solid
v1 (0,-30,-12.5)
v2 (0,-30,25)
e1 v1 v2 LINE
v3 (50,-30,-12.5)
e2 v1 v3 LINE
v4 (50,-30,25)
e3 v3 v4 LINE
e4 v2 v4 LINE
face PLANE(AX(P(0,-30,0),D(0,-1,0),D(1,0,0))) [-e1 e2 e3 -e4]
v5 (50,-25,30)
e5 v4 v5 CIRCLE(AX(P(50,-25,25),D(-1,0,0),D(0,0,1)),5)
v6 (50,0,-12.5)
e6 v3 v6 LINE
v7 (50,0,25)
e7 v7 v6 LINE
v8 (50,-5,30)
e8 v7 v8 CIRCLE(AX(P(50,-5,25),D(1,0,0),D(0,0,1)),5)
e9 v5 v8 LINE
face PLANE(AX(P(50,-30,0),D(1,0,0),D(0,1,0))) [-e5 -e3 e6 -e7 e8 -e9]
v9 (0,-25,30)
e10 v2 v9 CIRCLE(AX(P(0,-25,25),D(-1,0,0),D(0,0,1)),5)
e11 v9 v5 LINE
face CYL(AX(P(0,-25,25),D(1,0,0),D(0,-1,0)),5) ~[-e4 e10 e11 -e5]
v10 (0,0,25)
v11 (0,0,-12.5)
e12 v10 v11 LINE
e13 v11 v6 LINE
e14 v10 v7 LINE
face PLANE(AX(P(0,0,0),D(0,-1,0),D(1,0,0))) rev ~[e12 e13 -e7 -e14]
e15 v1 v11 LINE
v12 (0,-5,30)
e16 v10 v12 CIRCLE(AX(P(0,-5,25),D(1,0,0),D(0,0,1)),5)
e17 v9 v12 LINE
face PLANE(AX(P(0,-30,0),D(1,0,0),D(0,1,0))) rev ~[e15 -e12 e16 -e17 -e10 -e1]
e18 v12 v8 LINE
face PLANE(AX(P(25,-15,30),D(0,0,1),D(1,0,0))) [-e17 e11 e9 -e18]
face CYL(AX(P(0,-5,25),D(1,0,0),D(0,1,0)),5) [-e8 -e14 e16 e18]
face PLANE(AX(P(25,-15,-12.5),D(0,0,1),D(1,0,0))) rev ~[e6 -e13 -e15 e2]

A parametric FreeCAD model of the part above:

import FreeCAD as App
import Part
import Sketcher
Q = App.Units.Quantity


def edges_at(feature, points):
    """Names of the edges that pass closest to the given points."""
    edges = feature.Shape.Edges
    near = lambda p: min(range(len(edges)), key=lambda i: edges[i].distToShape(Part.Vertex(*p))[0])
    return sorted({f"Edge{near(p) + 1}" for p in points})

doc = App.newDocument("Part")
body = doc.addObject("PartDesign::Body", "Body")

sketch1 = body.newObject("Sketcher::SketchObject", "Sketch")
sketch1.AttachmentSupport = (doc.getObject("XY_Plane"), [""])
sketch1.MapMode = "FlatFace"
sketch1.addGeometry([
    Part.LineSegment(App.Vector(0, 0, 0), App.Vector(0, -30, 0)),
    Part.LineSegment(App.Vector(0, -30, 0), App.Vector(50, -30, 0)),
    Part.LineSegment(App.Vector(50, -30, 0), App.Vector(50, 0, 0)),
    Part.LineSegment(App.Vector(50, 0, 0), App.Vector(0, 0, 0)),
], False)
sketch1.addConstraint([
    Sketcher.Constraint("Coincident", 0, 2, 1, 1),
    Sketcher.Constraint("Coincident", 1, 2, 2, 1),
    Sketcher.Constraint("Coincident", 2, 2, 3, 1),
    Sketcher.Constraint("Coincident", 3, 2, 0, 1),
    Sketcher.Constraint("Vertical", 0),
    Sketcher.Constraint("Horizontal", 1),
    Sketcher.Constraint("Vertical", 2),
    Sketcher.Constraint("Horizontal", 3),
    Sketcher.Constraint("Coincident", 3, 2, -1, 1),
    Sketcher.Constraint("DistanceX", 1, 1, 1, 2, Q("50 mm")),
    Sketcher.Constraint("DistanceY", 0, 2, 0, 1, Q("30 mm")),
])
pad1 = body.newObject("PartDesign::Pad", "Pad")
pad1.Profile = sketch1
pad1.Length = 30
doc.recompute()

fillet = body.newObject("PartDesign::Fillet", "Fillet")
fillet.Base = (pad1, edges_at(pad1, [
    (25, -30, 0),
    (25, 0, 0),
    (25, 0, 30),
    (25, -30, 30),
]))
fillet.Radius = 5

sketch2 = body.newObject("Sketcher::SketchObject", "Sketch001")
sketch2.AttachmentSupport = (doc.getObject("XY_Plane"), [""])
sketch2.MapMode = "FlatFace"
sketch2.addGeometry([
    Part.LineSegment(App.Vector(0, 0, 0), App.Vector(0, -30, 0)),
    Part.LineSegment(App.Vector(0, -30, 0), App.Vector(50, -30, 0)),
    Part.LineSegment(App.Vector(50, -30, 0), App.Vector(50, 0, 0)),
    Part.LineSegment(App.Vector(50, 0, 0), App.Vector(0, 0, 0)),
], False)
sketch2.addConstraint([
    Sketcher.Constraint("Coincident", 0, 2, 1, 1),
    Sketcher.Constraint("Coincident", 1, 2, 2, 1),
    Sketcher.Constraint("Coincident", 2, 2, 3, 1),
    Sketcher.Constraint("Coincident", 3, 2, 0, 1),
    Sketcher.Constraint("Vertical", 0),
    Sketcher.Constraint("Horizontal", 1),
    Sketcher.Constraint("Vertical", 2),
    Sketcher.Constraint("Horizontal", 3),
    Sketcher.Constraint("Coincident", 3, 2, -1, 1),
    Sketcher.Constraint("DistanceX", 1, 1, 1, 2, Q("50 mm")),
    Sketcher.Constraint("DistanceY", 0, 2, 0, 1, Q("30 mm")),
])
pad2 = body.newObject("PartDesign::Pad", "Pad001")
pad2.Profile = sketch2
pad2.Length = 25
pad2.Midplane = True

doc.recompute()
